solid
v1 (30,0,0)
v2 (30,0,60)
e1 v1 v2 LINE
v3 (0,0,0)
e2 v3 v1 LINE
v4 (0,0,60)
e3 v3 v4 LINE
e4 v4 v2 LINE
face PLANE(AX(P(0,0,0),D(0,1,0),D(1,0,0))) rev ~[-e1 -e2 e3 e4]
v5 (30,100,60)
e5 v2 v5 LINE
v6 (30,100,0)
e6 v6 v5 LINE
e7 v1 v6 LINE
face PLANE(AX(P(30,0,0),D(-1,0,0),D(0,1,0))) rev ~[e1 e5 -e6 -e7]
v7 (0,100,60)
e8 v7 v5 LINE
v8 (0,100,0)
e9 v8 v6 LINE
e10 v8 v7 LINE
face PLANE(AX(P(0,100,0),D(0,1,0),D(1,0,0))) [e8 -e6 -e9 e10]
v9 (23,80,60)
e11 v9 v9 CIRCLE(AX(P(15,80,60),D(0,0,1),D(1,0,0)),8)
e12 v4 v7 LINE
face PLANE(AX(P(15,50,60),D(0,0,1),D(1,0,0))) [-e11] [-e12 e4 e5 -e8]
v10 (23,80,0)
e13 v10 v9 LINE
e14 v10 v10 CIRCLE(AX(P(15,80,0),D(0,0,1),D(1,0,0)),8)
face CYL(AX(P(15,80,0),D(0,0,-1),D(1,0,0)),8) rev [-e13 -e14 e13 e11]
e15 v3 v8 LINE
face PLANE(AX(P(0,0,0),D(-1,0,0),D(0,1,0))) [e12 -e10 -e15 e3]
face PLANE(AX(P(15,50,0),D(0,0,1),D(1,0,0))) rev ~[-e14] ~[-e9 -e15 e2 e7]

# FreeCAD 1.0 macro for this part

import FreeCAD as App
import Part
import Sketcher
from FreeCAD import Vector

doc = App.newDocument("Part")
body = doc.addObject("PartDesign::Body", "Body")

sketch1 = doc.addObject("Sketcher::SketchObject", "Sketch")
body.addObject(sketch1)
sketch1.AttachmentSupport = (doc.XY_Plane, [""])
sketch1.MapMode = "FlatFace"
sketch1.addGeometry([
    Part.LineSegment(Vector(0, 100, 0), Vector(0, 0, 0)),
    Part.LineSegment(Vector(0, 0, 0), Vector(30, 0, 0)),
    Part.LineSegment(Vector(30, 0, 0), Vector(30, 100, 0)),
    Part.LineSegment(Vector(30, 100, 0), Vector(0, 100, 0)),
    Part.Circle(Vector(15, 80, 0), Vector(0, 0, 1), 8),
], False)
sketch1.addConstraint([
    Sketcher.Constraint("Coincident", 0, 2, 1, 1),
    Sketcher.Constraint("Coincident", 1, 2, 2, 1),
    Sketcher.Constraint("Coincident", 2, 2, 3, 1),
    Sketcher.Constraint("Coincident", 3, 2, 0, 1),
    Sketcher.Constraint("Vertical", 0),
    Sketcher.Constraint("Horizontal", 1),
    Sketcher.Constraint("Vertical", 2),
    Sketcher.Constraint("Horizontal", 3),
    Sketcher.Constraint("Coincident", 0, 2, -1, 1),
    Sketcher.Constraint("Diameter", 4, 16.0),
    Sketcher.Constraint("DistanceX", 1, 1, 1, 2, 30.0),
    Sketcher.Constraint("DistanceY", 0, 2, 0, 1, 100.0),
    Sketcher.Constraint("DistanceX", -1, 1, 4, 3, 15.0),
    Sketcher.Constraint("DistanceY", -1, 1, 4, 3, 80.0),
])
pad1 = doc.addObject("PartDesign::Pad", "Pad")
body.addObject(pad1)
pad1.Profile = sketch1
pad1.Length = 60

doc.recompute()
